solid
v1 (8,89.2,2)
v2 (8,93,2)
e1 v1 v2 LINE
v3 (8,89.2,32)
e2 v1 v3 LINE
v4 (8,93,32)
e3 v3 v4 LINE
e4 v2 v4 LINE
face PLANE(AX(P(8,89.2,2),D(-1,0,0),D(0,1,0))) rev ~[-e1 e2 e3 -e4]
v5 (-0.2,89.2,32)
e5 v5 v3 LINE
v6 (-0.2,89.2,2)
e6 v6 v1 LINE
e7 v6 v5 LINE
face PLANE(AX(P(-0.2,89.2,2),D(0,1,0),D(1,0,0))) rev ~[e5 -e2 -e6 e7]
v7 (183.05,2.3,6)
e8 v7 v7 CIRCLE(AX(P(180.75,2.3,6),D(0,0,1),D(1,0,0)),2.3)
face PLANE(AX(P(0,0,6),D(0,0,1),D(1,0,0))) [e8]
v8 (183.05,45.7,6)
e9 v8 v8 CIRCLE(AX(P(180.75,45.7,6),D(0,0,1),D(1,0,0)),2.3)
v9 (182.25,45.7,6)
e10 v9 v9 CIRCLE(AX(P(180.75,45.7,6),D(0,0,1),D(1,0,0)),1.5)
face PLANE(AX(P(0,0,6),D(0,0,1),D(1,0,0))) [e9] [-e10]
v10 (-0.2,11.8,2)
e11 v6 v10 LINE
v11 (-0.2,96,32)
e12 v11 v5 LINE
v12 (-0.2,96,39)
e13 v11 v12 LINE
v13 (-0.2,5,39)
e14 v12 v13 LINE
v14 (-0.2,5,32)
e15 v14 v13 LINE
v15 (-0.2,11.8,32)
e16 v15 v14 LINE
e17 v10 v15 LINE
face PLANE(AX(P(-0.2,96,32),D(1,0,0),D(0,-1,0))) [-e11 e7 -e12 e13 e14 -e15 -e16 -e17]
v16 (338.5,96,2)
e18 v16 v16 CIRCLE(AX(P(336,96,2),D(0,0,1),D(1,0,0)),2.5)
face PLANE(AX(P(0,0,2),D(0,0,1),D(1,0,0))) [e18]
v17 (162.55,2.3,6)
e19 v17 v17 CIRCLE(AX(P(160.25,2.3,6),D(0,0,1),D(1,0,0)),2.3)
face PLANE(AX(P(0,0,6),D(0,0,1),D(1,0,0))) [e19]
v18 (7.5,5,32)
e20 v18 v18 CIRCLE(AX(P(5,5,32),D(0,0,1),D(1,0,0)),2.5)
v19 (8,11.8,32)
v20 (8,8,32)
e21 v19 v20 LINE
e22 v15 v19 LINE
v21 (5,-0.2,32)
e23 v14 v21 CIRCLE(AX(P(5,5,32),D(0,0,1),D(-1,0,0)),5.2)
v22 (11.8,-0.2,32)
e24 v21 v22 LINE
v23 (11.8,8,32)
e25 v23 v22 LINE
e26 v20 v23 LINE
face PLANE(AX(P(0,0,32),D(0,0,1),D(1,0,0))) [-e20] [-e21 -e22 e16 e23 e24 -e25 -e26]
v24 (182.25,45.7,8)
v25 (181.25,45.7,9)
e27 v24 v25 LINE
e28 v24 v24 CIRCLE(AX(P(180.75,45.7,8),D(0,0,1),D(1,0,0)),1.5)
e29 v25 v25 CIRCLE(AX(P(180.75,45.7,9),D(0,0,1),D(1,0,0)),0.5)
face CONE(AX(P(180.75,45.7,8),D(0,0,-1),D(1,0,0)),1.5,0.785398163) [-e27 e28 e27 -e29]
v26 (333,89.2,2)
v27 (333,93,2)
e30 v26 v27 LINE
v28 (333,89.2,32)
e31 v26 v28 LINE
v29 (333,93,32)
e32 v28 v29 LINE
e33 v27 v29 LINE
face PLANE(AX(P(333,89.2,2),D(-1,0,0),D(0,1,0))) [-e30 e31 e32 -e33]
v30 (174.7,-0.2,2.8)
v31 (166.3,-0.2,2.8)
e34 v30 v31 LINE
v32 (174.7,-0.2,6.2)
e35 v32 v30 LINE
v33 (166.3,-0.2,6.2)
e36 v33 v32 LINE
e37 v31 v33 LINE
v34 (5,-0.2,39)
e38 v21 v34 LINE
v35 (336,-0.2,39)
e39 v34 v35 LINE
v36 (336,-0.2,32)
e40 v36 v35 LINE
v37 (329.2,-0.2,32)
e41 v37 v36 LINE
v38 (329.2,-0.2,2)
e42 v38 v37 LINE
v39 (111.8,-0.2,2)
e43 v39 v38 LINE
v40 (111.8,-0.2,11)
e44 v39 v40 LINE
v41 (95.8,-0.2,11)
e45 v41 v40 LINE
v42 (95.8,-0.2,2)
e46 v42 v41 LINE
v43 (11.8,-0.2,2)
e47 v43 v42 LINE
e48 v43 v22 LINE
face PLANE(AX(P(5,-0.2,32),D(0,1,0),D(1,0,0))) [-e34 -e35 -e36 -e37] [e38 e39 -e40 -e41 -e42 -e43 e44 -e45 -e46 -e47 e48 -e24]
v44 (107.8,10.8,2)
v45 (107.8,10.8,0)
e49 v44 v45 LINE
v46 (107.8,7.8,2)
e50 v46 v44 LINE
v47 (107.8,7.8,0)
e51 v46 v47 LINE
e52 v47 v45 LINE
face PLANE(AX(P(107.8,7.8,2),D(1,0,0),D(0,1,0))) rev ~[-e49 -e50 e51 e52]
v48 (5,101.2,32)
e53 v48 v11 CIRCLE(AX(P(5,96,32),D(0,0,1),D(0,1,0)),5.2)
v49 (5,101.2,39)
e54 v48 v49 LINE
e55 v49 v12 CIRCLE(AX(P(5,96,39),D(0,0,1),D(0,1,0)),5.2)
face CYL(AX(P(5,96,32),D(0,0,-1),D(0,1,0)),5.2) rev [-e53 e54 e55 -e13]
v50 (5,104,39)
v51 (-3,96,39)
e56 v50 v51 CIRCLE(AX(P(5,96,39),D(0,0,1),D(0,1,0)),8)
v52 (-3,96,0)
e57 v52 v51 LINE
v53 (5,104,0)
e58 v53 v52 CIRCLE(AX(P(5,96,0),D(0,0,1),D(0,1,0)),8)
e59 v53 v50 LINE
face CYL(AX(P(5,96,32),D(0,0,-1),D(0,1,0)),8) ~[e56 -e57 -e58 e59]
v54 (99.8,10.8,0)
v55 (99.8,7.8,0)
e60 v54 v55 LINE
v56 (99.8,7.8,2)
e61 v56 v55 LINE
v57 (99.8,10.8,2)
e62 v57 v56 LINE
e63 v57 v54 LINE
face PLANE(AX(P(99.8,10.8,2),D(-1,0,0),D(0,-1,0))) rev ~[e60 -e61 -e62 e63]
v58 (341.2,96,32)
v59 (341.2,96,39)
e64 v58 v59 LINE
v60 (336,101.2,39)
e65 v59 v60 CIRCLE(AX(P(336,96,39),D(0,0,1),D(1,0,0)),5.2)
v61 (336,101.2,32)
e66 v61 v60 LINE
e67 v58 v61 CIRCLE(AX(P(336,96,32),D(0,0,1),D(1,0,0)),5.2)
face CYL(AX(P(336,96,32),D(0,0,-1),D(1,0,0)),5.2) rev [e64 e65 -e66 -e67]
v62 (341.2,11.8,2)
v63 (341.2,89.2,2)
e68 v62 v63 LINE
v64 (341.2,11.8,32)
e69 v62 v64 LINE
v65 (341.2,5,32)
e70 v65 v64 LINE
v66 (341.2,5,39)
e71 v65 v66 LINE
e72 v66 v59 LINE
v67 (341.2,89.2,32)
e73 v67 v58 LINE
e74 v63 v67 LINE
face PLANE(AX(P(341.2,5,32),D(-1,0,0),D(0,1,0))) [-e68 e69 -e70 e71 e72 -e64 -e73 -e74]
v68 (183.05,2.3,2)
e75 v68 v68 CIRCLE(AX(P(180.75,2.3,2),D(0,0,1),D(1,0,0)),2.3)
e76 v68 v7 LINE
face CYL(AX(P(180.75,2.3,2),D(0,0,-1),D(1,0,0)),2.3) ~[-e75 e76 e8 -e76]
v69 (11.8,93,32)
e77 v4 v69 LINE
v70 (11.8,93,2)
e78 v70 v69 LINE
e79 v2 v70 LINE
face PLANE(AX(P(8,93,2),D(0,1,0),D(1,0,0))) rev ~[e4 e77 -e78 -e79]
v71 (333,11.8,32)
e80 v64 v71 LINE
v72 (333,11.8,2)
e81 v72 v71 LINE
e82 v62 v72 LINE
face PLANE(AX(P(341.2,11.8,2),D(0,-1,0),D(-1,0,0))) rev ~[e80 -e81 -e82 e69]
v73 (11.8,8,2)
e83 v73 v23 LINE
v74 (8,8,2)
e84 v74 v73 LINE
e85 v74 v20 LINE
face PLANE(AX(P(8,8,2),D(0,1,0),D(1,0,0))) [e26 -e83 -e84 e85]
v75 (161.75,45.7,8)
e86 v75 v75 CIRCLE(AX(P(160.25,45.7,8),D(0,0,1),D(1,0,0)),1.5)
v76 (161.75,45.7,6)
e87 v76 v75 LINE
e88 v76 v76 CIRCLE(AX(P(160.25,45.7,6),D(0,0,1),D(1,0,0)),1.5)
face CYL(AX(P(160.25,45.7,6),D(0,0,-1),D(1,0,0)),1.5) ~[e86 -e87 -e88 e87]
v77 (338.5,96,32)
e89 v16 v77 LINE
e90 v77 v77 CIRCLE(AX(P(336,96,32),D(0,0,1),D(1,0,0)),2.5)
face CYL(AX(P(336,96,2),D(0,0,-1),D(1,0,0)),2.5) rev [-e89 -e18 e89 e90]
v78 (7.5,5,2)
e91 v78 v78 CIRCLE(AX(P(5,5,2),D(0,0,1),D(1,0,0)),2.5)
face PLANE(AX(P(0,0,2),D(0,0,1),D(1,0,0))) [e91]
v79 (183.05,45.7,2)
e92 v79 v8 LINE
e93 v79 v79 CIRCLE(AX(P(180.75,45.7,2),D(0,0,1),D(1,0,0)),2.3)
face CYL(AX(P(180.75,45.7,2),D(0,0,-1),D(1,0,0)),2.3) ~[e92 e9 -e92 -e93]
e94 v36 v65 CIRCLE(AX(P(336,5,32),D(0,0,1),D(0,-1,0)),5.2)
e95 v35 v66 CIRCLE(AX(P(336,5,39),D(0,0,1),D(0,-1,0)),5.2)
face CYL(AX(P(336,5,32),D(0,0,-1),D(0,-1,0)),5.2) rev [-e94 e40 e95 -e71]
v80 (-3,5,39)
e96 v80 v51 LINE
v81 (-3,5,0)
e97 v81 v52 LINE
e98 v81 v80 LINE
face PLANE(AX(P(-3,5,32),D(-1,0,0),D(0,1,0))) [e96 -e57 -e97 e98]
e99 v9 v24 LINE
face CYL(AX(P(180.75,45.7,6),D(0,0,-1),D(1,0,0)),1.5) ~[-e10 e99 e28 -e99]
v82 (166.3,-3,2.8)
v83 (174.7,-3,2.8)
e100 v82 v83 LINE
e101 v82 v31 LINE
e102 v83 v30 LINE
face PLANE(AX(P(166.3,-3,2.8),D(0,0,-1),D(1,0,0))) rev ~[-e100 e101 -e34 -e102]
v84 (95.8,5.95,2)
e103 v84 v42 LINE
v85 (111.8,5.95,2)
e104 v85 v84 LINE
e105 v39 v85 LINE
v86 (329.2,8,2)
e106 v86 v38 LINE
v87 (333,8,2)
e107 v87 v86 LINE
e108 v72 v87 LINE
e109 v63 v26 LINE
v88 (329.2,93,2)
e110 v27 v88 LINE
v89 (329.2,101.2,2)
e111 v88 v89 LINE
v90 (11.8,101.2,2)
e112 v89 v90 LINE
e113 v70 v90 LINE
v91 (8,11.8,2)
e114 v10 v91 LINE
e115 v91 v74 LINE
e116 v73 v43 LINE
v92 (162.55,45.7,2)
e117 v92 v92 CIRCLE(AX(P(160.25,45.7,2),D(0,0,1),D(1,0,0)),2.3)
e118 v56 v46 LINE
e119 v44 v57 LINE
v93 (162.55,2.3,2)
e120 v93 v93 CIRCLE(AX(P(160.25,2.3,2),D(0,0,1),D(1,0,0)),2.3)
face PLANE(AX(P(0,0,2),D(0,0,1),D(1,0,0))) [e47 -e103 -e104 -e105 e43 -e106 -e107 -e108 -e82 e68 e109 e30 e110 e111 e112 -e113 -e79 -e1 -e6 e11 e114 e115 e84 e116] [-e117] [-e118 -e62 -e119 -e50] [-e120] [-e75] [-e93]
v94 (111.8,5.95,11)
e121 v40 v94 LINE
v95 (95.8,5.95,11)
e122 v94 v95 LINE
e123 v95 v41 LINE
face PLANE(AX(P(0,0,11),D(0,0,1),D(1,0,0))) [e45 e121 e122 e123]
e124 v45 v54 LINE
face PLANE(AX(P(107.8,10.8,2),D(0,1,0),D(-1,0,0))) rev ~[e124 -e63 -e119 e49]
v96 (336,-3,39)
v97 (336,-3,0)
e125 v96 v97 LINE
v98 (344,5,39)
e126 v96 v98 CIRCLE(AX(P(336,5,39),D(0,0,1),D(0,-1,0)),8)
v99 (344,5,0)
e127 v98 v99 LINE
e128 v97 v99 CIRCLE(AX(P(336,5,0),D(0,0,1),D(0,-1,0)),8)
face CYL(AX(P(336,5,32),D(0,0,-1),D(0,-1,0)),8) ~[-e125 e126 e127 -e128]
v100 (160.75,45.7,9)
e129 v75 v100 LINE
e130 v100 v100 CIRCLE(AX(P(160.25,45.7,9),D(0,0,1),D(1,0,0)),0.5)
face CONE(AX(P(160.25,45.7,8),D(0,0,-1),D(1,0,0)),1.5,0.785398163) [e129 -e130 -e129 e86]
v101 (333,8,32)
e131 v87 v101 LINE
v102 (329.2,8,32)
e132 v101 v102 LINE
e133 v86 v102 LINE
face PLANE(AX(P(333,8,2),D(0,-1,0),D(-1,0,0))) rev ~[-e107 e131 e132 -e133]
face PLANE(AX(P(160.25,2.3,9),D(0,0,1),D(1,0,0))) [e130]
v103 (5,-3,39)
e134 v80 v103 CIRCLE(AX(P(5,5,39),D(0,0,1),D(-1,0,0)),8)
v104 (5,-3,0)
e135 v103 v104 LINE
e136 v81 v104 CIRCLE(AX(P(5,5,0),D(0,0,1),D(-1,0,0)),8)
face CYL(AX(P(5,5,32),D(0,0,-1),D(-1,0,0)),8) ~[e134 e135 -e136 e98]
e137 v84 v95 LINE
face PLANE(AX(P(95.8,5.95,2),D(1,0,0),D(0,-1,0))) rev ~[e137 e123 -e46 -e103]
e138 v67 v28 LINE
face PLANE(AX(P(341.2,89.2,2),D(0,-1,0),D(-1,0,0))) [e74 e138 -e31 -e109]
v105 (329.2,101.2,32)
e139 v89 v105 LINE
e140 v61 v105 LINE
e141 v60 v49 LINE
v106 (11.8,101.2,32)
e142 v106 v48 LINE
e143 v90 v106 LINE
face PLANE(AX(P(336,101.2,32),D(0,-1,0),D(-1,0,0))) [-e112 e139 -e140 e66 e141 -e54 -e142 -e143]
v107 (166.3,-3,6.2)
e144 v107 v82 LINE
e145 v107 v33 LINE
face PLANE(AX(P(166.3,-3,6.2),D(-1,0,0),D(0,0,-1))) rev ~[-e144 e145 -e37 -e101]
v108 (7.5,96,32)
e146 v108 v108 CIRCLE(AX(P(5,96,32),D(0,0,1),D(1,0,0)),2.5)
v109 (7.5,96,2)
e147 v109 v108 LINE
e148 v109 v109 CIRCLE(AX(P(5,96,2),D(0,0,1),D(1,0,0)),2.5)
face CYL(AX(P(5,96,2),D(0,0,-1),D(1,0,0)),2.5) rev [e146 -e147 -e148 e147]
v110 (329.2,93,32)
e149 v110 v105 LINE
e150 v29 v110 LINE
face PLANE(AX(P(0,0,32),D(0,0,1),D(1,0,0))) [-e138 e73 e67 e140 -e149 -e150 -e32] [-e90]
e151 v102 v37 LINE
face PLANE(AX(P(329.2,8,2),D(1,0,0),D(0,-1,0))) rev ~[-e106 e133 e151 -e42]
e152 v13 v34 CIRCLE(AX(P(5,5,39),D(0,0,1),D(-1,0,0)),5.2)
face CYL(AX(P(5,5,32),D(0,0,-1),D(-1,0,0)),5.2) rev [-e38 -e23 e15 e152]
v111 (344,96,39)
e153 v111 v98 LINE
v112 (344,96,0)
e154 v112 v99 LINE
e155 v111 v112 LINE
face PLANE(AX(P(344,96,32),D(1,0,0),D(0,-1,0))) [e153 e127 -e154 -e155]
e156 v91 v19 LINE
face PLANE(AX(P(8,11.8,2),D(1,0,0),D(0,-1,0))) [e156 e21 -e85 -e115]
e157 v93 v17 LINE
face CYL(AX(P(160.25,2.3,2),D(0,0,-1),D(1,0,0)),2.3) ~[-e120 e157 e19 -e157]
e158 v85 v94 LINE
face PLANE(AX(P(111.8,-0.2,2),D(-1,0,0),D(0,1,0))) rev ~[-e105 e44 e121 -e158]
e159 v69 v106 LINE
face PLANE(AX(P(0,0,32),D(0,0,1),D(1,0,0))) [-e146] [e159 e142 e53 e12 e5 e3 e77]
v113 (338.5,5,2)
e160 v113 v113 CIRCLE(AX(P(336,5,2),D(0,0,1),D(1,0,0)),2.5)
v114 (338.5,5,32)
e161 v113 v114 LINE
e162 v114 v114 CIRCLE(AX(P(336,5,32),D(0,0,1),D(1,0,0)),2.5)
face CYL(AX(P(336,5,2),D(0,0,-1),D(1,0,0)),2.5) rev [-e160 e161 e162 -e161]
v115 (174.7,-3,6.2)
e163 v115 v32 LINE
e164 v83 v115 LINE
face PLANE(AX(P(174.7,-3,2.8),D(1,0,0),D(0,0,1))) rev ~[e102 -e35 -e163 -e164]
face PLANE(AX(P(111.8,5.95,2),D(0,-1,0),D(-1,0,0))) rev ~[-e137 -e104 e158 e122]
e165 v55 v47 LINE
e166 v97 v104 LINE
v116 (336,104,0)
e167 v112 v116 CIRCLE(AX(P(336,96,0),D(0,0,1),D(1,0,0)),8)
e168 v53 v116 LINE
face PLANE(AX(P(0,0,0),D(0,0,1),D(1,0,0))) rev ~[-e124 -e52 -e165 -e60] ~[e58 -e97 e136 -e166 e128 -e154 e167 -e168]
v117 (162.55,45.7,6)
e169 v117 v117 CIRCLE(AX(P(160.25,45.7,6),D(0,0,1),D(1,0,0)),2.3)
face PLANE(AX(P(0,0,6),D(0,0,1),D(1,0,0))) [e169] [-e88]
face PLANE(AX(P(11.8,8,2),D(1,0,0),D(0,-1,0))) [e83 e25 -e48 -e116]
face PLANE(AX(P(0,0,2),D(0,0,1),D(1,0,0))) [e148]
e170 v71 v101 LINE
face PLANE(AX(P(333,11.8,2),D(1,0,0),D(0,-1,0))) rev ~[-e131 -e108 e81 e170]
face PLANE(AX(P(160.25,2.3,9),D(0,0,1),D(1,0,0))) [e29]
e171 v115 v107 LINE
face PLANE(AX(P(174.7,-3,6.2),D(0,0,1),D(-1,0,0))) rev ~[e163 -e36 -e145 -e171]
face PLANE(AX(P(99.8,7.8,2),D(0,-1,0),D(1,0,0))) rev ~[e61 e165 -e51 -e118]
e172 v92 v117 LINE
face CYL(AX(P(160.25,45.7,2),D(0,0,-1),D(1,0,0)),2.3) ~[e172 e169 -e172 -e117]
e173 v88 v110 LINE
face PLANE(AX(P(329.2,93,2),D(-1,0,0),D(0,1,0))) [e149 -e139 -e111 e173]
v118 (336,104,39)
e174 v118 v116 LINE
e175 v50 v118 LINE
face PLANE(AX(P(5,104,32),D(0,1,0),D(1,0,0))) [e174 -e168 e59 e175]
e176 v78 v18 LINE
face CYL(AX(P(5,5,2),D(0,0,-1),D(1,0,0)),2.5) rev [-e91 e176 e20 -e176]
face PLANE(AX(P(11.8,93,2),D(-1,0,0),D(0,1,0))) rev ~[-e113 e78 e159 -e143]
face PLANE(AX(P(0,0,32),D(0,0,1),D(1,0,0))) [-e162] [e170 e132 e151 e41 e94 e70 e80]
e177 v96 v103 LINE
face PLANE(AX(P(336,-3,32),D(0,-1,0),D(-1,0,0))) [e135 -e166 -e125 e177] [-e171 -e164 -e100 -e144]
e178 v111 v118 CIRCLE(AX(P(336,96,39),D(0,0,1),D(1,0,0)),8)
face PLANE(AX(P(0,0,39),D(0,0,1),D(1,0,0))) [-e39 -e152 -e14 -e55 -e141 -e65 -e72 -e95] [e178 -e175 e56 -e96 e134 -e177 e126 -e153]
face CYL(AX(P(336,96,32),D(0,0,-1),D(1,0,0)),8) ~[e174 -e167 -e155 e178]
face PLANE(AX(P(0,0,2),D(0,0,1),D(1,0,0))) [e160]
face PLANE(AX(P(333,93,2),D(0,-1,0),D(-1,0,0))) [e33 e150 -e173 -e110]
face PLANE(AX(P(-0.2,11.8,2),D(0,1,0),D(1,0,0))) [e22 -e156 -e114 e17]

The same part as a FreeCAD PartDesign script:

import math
import FreeCAD as App
import Part
import Sketcher

V = App.Vector


def edges_at(feature, points):
    """Names of the edges that pass closest to the given points."""
    edges = feature.Shape.Edges
    near = lambda p: min(range(len(edges)), key=lambda i: edges[i].distToShape(Part.Vertex(*p))[0])
    return sorted({f"Edge{near(p) + 1}" for p in points})

doc = App.newDocument("Part")
body = doc.addObject("PartDesign::Body", "Body")

sketch1 = body.newObject("Sketcher::SketchObject", "Sketch")
sketch1.AttachmentSupport = (doc.getObject("XY_Plane"), [""])
sketch1.MapMode = "FlatFace"
sketch1.addGeometry(Part.LineSegment(V(336, 104, 0), V(5, 104, 0)), False)
sketch1.addGeometry(Part.ArcOfCircle(Part.Circle(V(5, 96, 0), V(0, 0, 1), 8), math.radians(90), math.radians(180)), False)
sketch1.addGeometry(Part.LineSegment(V(-3, 96, 0), V(-3, 5, 0)), False)
sketch1.addGeometry(Part.ArcOfCircle(Part.Circle(V(5, 5, 0), V(0, 0, 1), 8), math.radians(180), math.radians(270)), False)
sketch1.addGeometry(Part.LineSegment(V(5, -3, 0), V(336, -3, 0)), False)
sketch1.addGeometry(Part.ArcOfCircle(Part.Circle(V(336, 5, 0), V(0, 0, 1), 8), math.radians(-90), math.radians(0)), False)
sketch1.addGeometry(Part.LineSegment(V(344, 5, 0), V(344, 96, 0)), False)
sketch1.addGeometry(Part.ArcOfCircle(Part.Circle(V(336, 96, 0), V(0, 0, 1), 8), math.radians(0), math.radians(90)), False)
sketch1.addConstraint(Sketcher.Constraint("Tangent", 0, 2, 1, 1))
sketch1.addConstraint(Sketcher.Constraint("Tangent", 1, 2, 2, 1))
sketch1.addConstraint(Sketcher.Constraint("Tangent", 2, 2, 3, 1))
sketch1.addConstraint(Sketcher.Constraint("Tangent", 3, 2, 4, 1))
sketch1.addConstraint(Sketcher.Constraint("Tangent", 4, 2, 5, 1))
sketch1.addConstraint(Sketcher.Constraint("Tangent", 5, 2, 6, 1))
sketch1.addConstraint(Sketcher.Constraint("Tangent", 6, 2, 7, 1))
sketch1.addConstraint(Sketcher.Constraint("Tangent", 7, 2, 0, 1))
sketch1.addConstraint(Sketcher.Constraint("Horizontal", 0))
sketch1.addConstraint(Sketcher.Constraint("Vertical", 2))
sketch1.addConstraint(Sketcher.Constraint("Horizontal", 4))
sketch1.addConstraint(Sketcher.Constraint("Vertical", 6))
sketch1.addConstraint(Sketcher.Constraint("Equal", 1, 3))
sketch1.addConstraint(Sketcher.Constraint("Equal", 3, 5))
sketch1.addConstraint(Sketcher.Constraint("Equal", 5, 7))
sketch1.addConstraint(Sketcher.Constraint("DistanceX", -1, 1, 1, 3, 5.0))
sketch1.addConstraint(Sketcher.Constraint("DistanceY", -1, 1, 3, 3, 5.0))
sketch1.addConstraint(Sketcher.Constraint("DistanceX", 1, 2, -1, 1, 3.0))
sketch1.addConstraint(Sketcher.Constraint("DistanceX", 0, 2, 0, 1, 331.0))
sketch1.addConstraint(Sketcher.Constraint("DistanceY", 2, 2, 2, 1, 91.0))
pad1 = body.newObject("PartDesign::Pad", "Pad")
pad1.Profile = sketch1
pad1.Length = 2

sketch2 = body.newObject("Sketcher::SketchObject", "Sketch001")
sketch2.AttachmentSupport = (doc.getObject("XY_Plane"), [""])
sketch2.MapMode = "FlatFace"
sketch2.AttachmentOffset = App.Placement(V(0, 0, 2), App.Rotation())
sketch2.addGeometry(Part.LineSegment(V(336, 104, 0), V(5, 104, 0)), False)
sketch2.addGeometry(Part.ArcOfCircle(Part.Circle(V(5, 96, 0), V(0, 0, 1), 8), math.radians(90), math.radians(180)), False)
sketch2.addGeometry(Part.LineSegment(V(-3, 96, 0), V(-3, 5, 0)), False)
sketch2.addGeometry(Part.ArcOfCircle(Part.Circle(V(5, 5, 0), V(0, 0, 1), 8), math.radians(180), math.radians(270)), False)
sketch2.addGeometry(Part.LineSegment(V(5, -3, 0), V(336, -3, 0)), False)
sketch2.addGeometry(Part.ArcOfCircle(Part.Circle(V(336, 5, 0), V(0, 0, 1), 8), math.radians(-90), math.radians(0)), False)
sketch2.addGeometry(Part.LineSegment(V(344, 5, 0), V(344, 96, 0)), False)
sketch2.addGeometry(Part.ArcOfCircle(Part.Circle(V(336, 96, 0), V(0, 0, 1), 8), math.radians(0), math.radians(90)), False)
sketch2.addGeometry(Part.LineSegment(V(11.8, 101.2, 0), V(329.2, 101.2, 0)), False)
sketch2.addGeometry(Part.LineSegment(V(329.2, 101.2, 0), V(329.2, 93, 0)), False)
sketch2.addGeometry(Part.LineSegment(V(329.2, 93, 0), V(333, 93, 0)), False)
sketch2.addGeometry(Part.LineSegment(V(333, 93, 0), V(333, 89.2, 0)), False)
sketch2.addGeometry(Part.LineSegment(V(333, 89.2, 0), V(341.2, 89.2, 0)), False)
sketch2.addGeometry(Part.LineSegment(V(341.2, 89.2, 0), V(341.2, 11.8, 0)), False)
sketch2.addGeometry(Part.LineSegment(V(341.2, 11.8, 0), V(333, 11.8, 0)), False)
sketch2.addGeometry(Part.LineSegment(V(333, 11.8, 0), V(333, 8, 0)), False)
sketch2.addGeometry(Part.LineSegment(V(333, 8, 0), V(329.2, 8, 0)), False)
sketch2.addGeometry(Part.LineSegment(V(329.2, 8, 0), V(329.2, -0.2, 0)), False)
sketch2.addGeometry(Part.LineSegment(V(329.2, -0.2, 0), V(11.8, -0.2, 0)), False)
sketch2.addGeometry(Part.LineSegment(V(11.8, -0.2, 0), V(11.8, 8, 0)), False)
sketch2.addGeometry(Part.LineSegment(V(11.8, 8, 0), V(8, 8, 0)), False)
sketch2.addGeometry(Part.LineSegment(V(8, 8, 0), V(8, 11.8, 0)), False)
sketch2.addGeometry(Part.LineSegment(V(8, 11.8, 0), V(-0.2, 11.8, 0)), False)
sketch2.addGeometry(Part.LineSegment(V(-0.2, 11.8, 0), V(-0.2, 89.2, 0)), False)
sketch2.addGeometry(Part.LineSegment(V(-0.2, 89.2, 0), V(8, 89.2, 0)), False)
sketch2.addGeometry(Part.LineSegment(V(8, 89.2, 0), V(8, 93, 0)), False)
sketch2.addGeometry(Part.LineSegment(V(8, 93, 0), V(11.8, 93, 0)), False)
sketch2.addGeometry(Part.LineSegment(V(11.8, 93, 0), V(11.8, 101.2, 0)), False)
sketch2.addGeometry(Part.Circle(V(336, 96, 0), V(0, 0, 1), 2.5), False)
sketch2.addGeometry(Part.Circle(V(5, 96, 0), V(0, 0, 1), 2.5), False)
sketch2.addGeometry(Part.Circle(V(5, 5, 0), V(0, 0, 1), 2.5), False)
sketch2.addGeometry(Part.Circle(V(336, 5, 0), V(0, 0, 1), 2.5), False)
sketch2.addConstraint(Sketcher.Constraint("Tangent", 0, 2, 1, 1))
sketch2.addConstraint(Sketcher.Constraint("Tangent", 1, 2, 2, 1))
sketch2.addConstraint(Sketcher.Constraint("Tangent", 2, 2, 3, 1))
sketch2.addConstraint(Sketcher.Constraint("Tangent", 3, 2, 4, 1))
sketch2.addConstraint(Sketcher.Constraint("Tangent", 4, 2, 5, 1))
sketch2.addConstraint(Sketcher.Constraint("Tangent", 5, 2, 6, 1))
sketch2.addConstraint(Sketcher.Constraint("Tangent", 6, 2, 7, 1))
sketch2.addConstraint(Sketcher.Constraint("Tangent", 7, 2, 0, 1))
sketch2.addConstraint(Sketcher.Constraint("Coincident", 8, 2, 9, 1))
sketch2.addConstraint(Sketcher.Constraint("Coincident", 9, 2, 10, 1))
sketch2.addConstraint(Sketcher.Constraint("Coincident", 10, 2, 11, 1))
sketch2.addConstraint(Sketcher.Constraint("Coincident", 11, 2, 12, 1))
sketch2.addConstraint(Sketcher.Constraint("Coincident", 12, 2, 13, 1))
sketch2.addConstraint(Sketcher.Constraint("Coincident", 13, 2, 14, 1))
sketch2.addConstraint(Sketcher.Constraint("Coincident", 14, 2, 15, 1))
sketch2.addConstraint(Sketcher.Constraint("Coincident", 15, 2, 16, 1))
sketch2.addConstraint(Sketcher.Constraint("Coincident", 16, 2, 17, 1))
sketch2.addConstraint(Sketcher.Constraint("Coincident", 17, 2, 18, 1))
sketch2.addConstraint(Sketcher.Constraint("Coincident", 18, 2, 19, 1))
sketch2.addConstraint(Sketcher.Constraint("Coincident", 19, 2, 20, 1))
sketch2.addConstraint(Sketcher.Constraint("Coincident", 20, 2, 21, 1))
sketch2.addConstraint(Sketcher.Constraint("Coincident", 21, 2, 22, 1))
sketch2.addConstraint(Sketcher.Constraint("Coincident", 22, 2, 23, 1))
sketch2.addConstraint(Sketcher.Constraint("Coincident", 23, 2, 24, 1))
sketch2.addConstraint(Sketcher.Constraint("Coincident", 24, 2, 25, 1))
sketch2.addConstraint(Sketcher.Constraint("Coincident", 25, 2, 26, 1))
sketch2.addConstraint(Sketcher.Constraint("Coincident", 26, 2, 27, 1))
sketch2.addConstraint(Sketcher.Constraint("Coincident", 27, 2, 8, 1))
sketch2.addConstraint(Sketcher.Constraint("Horizontal", 0))
sketch2.addConstraint(Sketcher.Constraint("Vertical", 2))
sketch2.addConstraint(Sketcher.Constraint("Horizontal", 4))
sketch2.addConstraint(Sketcher.Constraint("Vertical", 6))
sketch2.addConstraint(Sketcher.Constraint("Horizontal", 8))
sketch2.addConstraint(Sketcher.Constraint("Vertical", 9))
sketch2.addConstraint(Sketcher.Constraint("Horizontal", 10))
sketch2.addConstraint(Sketcher.Constraint("Vertical", 11))
sketch2.addConstraint(Sketcher.Constraint("Horizontal", 12))
sketch2.addConstraint(Sketcher.Constraint("Vertical", 13))
sketch2.addConstraint(Sketcher.Constraint("Horizontal", 14))
sketch2.addConstraint(Sketcher.Constraint("Vertical", 15))
sketch2.addConstraint(Sketcher.Constraint("Horizontal", 16))
sketch2.addConstraint(Sketcher.Constraint("Vertical", 17))
sketch2.addConstraint(Sketcher.Constraint("Horizontal", 18))
sketch2.addConstraint(Sketcher.Constraint("Vertical", 19))
sketch2.addConstraint(Sketcher.Constraint("Horizontal", 20))
sketch2.addConstraint(Sketcher.Constraint("Vertical", 21))
sketch2.addConstraint(Sketcher.Constraint("Horizontal", 22))
sketch2.addConstraint(Sketcher.Constraint("Vertical", 23))
sketch2.addConstraint(Sketcher.Constraint("Horizontal", 24))
sketch2.addConstraint(Sketcher.Constraint("Vertical", 25))
sketch2.addConstraint(Sketcher.Constraint("Horizontal", 26))
sketch2.addConstraint(Sketcher.Constraint("Vertical", 27))
sketch2.addConstraint(Sketcher.Constraint("Coincident", 28, 3, 7, 3))
sketch2.addConstraint(Sketcher.Constraint("Coincident", 29, 3, 1, 3))
sketch2.addConstraint(Sketcher.Constraint("Coincident", 30, 3, 3, 3))
sketch2.addConstraint(Sketcher.Constraint("Coincident", 31, 3, 5, 3))
sketch2.addConstraint(Sketcher.Constraint("Equal", 1, 3))
sketch2.addConstraint(Sketcher.Constraint("Equal", 3, 5))
sketch2.addConstraint(Sketcher.Constraint("Equal", 5, 7))
sketch2.addConstraint(Sketcher.Constraint("Equal", 28, 29))
sketch2.addConstraint(Sketcher.Constraint("Equal", 29, 30))
sketch2.addConstraint(Sketcher.Constraint("Equal", 30, 31))
sketch2.addConstraint(Sketcher.Constraint("Horizontal", 16, 2, 19, 2))
sketch2.addConstraint(Sketcher.Constraint("Horizontal", 14, 2, 21, 2))
sketch2.addConstraint(Sketcher.Constraint("Horizontal", 12, 2, 23, 2))
sketch2.addConstraint(Sketcher.Constraint("Horizontal", 10, 2, 25, 2))
sketch2.addConstraint(Sketcher.Constraint("Vertical", 11, 2, 14, 2))
sketch2.addConstraint(Sketcher.Constraint("Vertical", 9, 2, 16, 2))
sketch2.addConstraint(Sketcher.Constraint("Vertical", 21, 2, 24, 2))
sketch2.addConstraint(Sketcher.Constraint("Vertical", 19, 2, 26, 2))
sketch2.addConstraint(Sketcher.Constraint("Equal", 16, 20))
sketch2.addConstraint(Sketcher.Constraint("Equal", 14, 22))
sketch2.addConstraint(Sketcher.Constraint("Equal", 24, 9))
sketch2.addConstraint(Sketcher.Constraint("Equal", 26, 11))
sketch2.addConstraint(Sketcher.Constraint("Equal", 11, 15))
sketch2.addConstraint(Sketcher.Constraint("Equal", 9, 17))
sketch2.addConstraint(Sketcher.Constraint("Diameter", 28, 5.0))
sketch2.addConstraint(Sketcher.Constraint("Radius", 1, 8.0))
sketch2.addConstraint(Sketcher.Constraint("DistanceX", -1, 1, 1, 3, 5.0))
sketch2.addConstraint(Sketcher.Constraint("DistanceY", -1, 1, 3, 3, 5.0))
sketch2.addConstraint(Sketcher.Constraint("DistanceY", -1, 1, 15, 2, 8.0))
sketch2.addConstraint(Sketcher.Constraint("DistanceX", -1, 1, 20, 2, 8.0))
sketch2.addConstraint(Sketcher.Constraint("DistanceY", 11, 2, 8, 2, 12.0))
sketch2.addConstraint(Sketcher.Constraint("DistanceY", 8, 2, 7, 2, 2.8))
sketch2.addConstraint(Sketcher.Constraint("DistanceX", 12, 2, 6, 2, 2.8))
sketch2.addConstraint(Sketcher.Constraint("DistanceY", 4, 2, 17, 2, 2.8))
sketch2.addConstraint(Sketcher.Constraint("DistanceX", 0, 2, 0, 1, 331.0))
sketch2.addConstraint(Sketcher.Constraint("DistanceY", 2, 2, 2, 1, 91.0))
pad2 = body.newObject("PartDesign::Pad", "Pad001")
pad2.Profile = sketch2
pad2.Length = 30

sketch3 = body.newObject("Sketcher::SketchObject", "Sketch002")
sketch3.AttachmentSupport = (doc.getObject("XY_Plane"), [""])
sketch3.MapMode = "FlatFace"
sketch3.AttachmentOffset = App.Placement(V(0, 0, 32), App.Rotation())
sketch3.addGeometry(Part.LineSegment(V(336, 104, 0), V(5, 104, 0)), False)
sketch3.addGeometry(Part.ArcOfCircle(Part.Circle(V(5, 96, 0), V(0, 0, 1), 8), math.radians(90), math.radians(180)), False)
sketch3.addGeometry(Part.LineSegment(V(-3, 96, 0), V(-3, 5, 0)), False)
sketch3.addGeometry(Part.ArcOfCircle(Part.Circle(V(5, 5, 0), V(0, 0, 1), 8), math.radians(180), math.radians(270)), False)
sketch3.addGeometry(Part.LineSegment(V(5, -3, 0), V(336, -3, 0)), False)
sketch3.addGeometry(Part.ArcOfCircle(Part.Circle(V(336, 5, 0), V(0, 0, 1), 8), math.radians(-90), math.radians(0)), False)
sketch3.addGeometry(Part.LineSegment(V(344, 5, 0), V(344, 96, 0)), False)
sketch3.addGeometry(Part.ArcOfCircle(Part.Circle(V(336, 96, 0), V(0, 0, 1), 8), math.radians(0), math.radians(90)), False)
sketch3.addGeometry(Part.LineSegment(V(5, 101, 0), V(336, 101, 0)), False)
sketch3.addGeometry(Part.ArcOfCircle(Part.Circle(V(336, 96, 0), V(0, 0, 1), 5), math.radians(0), math.radians(90)), False)
sketch3.addGeometry(Part.LineSegment(V(341, 96, 0), V(341, 5, 0)), False)
sketch3.addGeometry(Part.ArcOfCircle(Part.Circle(V(336, 5, 0), V(0, 0, 1), 5), math.radians(-90), math.radians(0)), False)
sketch3.addGeometry(Part.LineSegment(V(336, 0, 0), V(5, 0, 0)), False)
sketch3.addGeometry(Part.ArcOfCircle(Part.Circle(V(5, 5, 0), V(0, 0, 1), 5), math.radians(180), math.radians(270)), False)
sketch3.addGeometry(Part.LineSegment(V(0, 5, 0), V(0, 96, 0)), False)
sketch3.addGeometry(Part.ArcOfCircle(Part.Circle(V(5, 96, 0), V(0, 0, 1), 5), math.radians(90), math.radians(180)), False)
sketch3.addConstraint(Sketcher.Constraint("Tangent", 0, 2, 1, 1))
sketch3.addConstraint(Sketcher.Constraint("Tangent", 1, 2, 2, 1))
sketch3.addConstraint(Sketcher.Constraint("Tangent", 2, 2, 3, 1))
sketch3.addConstraint(Sketcher.Constraint("Tangent", 3, 2, 4, 1))
sketch3.addConstraint(Sketcher.Constraint("Tangent", 4, 2, 5, 1))
sketch3.addConstraint(Sketcher.Constraint("Tangent", 5, 2, 6, 1))
sketch3.addConstraint(Sketcher.Constraint("Tangent", 6, 2, 7, 1))
sketch3.addConstraint(Sketcher.Constraint("Tangent", 7, 2, 0, 1))
sketch3.addConstraint(Sketcher.Constraint("Tangent", 8, 2, 9, 2))
sketch3.addConstraint(Sketcher.Constraint("Tangent", 9, 1, 10, 1))
sketch3.addConstraint(Sketcher.Constraint("Tangent", 10, 2, 11, 2))
sketch3.addConstraint(Sketcher.Constraint("Tangent", 11, 1, 12, 1))
sketch3.addConstraint(Sketcher.Constraint("Tangent", 12, 2, 13, 2))
sketch3.addConstraint(Sketcher.Constraint("Tangent", 13, 1, 14, 1))
sketch3.addConstraint(Sketcher.Constraint("Tangent", 14, 2, 15, 2))
sketch3.addConstraint(Sketcher.Constraint("Tangent", 15, 1, 8, 1))
sketch3.addConstraint(Sketcher.Constraint("Horizontal", 0))
sketch3.addConstraint(Sketcher.Constraint("Vertical", 2))
sketch3.addConstraint(Sketcher.Constraint("Horizontal", 4))
sketch3.addConstraint(Sketcher.Constraint("Vertical", 6))
sketch3.addConstraint(Sketcher.Constraint("Horizontal", 8))
sketch3.addConstraint(Sketcher.Constraint("Vertical", 10))
sketch3.addConstraint(Sketcher.Constraint("Horizontal", 12))
sketch3.addConstraint(Sketcher.Constraint("Vertical", 14))
sketch3.addConstraint(Sketcher.Constraint("Coincident", 9, 3, 7, 3))
sketch3.addConstraint(Sketcher.Constraint("Coincident", 11, 3, 5, 3))
sketch3.addConstraint(Sketcher.Constraint("Coincident", 13, 3, 3, 3))
sketch3.addConstraint(Sketcher.Constraint("Equal", 1, 3))
sketch3.addConstraint(Sketcher.Constraint("Equal", 3, 5))
sketch3.addConstraint(Sketcher.Constraint("Equal", 5, 7))
sketch3.addConstraint(Sketcher.Constraint("Equal", 13, 15))
sketch3.addConstraint(Sketcher.Constraint("Radius", 1, 8.0))
sketch3.addConstraint(Sketcher.Constraint("Radius", 9, 5.2))
sketch3.addConstraint(Sketcher.Constraint("DistanceX", 0, 2, 0, 1, 331.0))
sketch3.addConstraint(Sketcher.Constraint("DistanceY", 2, 2, 2, 1, 91.0))
sketch3.addConstraint(Sketcher.Constraint("DistanceX", -1, 1, 1, 3, 5.0))
sketch3.addConstraint(Sketcher.Constraint("DistanceY", -1, 1, 1, 3, 96.0))
pad3 = body.newObject("PartDesign::Pad", "Pad002")
pad3.Profile = sketch3
pad3.Length = 7

sketch4 = body.newObject("Sketcher::SketchObject", "Sketch003")
sketch4.AttachmentSupport = (doc.getObject("XY_Plane"), [""])
sketch4.MapMode = "FlatFace"
sketch4.AttachmentOffset = App.Placement(V(0, 0, 2), App.Rotation())
sketch4.addGeometry(Part.Circle(V(160.2, 45.7, 0), V(0, 0, 1), 2.3), False)
sketch4.addGeometry(Part.Circle(V(180.8, 45.7, 0), V(0, 0, 1), 2.3), False)
sketch4.addGeometry(Part.Circle(V(160.2, 2.3, 0), V(0, 0, 1), 2.3), False)
sketch4.addGeometry(Part.Circle(V(180.8, 2.3, 0), V(0, 0, 1), 2.3), False)
sketch4.addConstraint(Sketcher.Constraint("Equal", 0, 1))
sketch4.addConstraint(Sketcher.Constraint("Equal", 1, 2))
sketch4.addConstraint(Sketcher.Constraint("Equal", 2, 3))
sketch4.addConstraint(Sketcher.Constraint("Horizontal", 0, 3, 1, 3))
sketch4.addConstraint(Sketcher.Constraint("Horizontal", 2, 3, 3, 3))
sketch4.addConstraint(Sketcher.Constraint("Vertical", 0, 3, 2, 3))
sketch4.addConstraint(Sketcher.Constraint("Vertical", 1, 3, 3, 3))
sketch4.addConstraint(Sketcher.Constraint("Diameter", 0, 4.6))
sketch4.addConstraint(Sketcher.Constraint("DistanceY", -1, 1, 0, 3, 45.7))
sketch4.addConstraint(Sketcher.Constraint("DistanceY", -1, 1, 2, 3, 2.3))
sketch4.addConstraint(Sketcher.Constraint("DistanceX", 0, 3, 1, 3, 20.5))
sketch4.addConstraint(Sketcher.Constraint("DistanceX", -1, 1, 0, 3, 160.25))
pad4 = body.newObject("PartDesign::Pad", "Pad003")
pad4.Profile = sketch4
pad4.Length = 4

sketch5 = body.newObject("Sketcher::SketchObject", "Sketch004")
sketch5.AttachmentSupport = (doc.getObject("XY_Plane"), [""])
sketch5.MapMode = "FlatFace"
sketch5.AttachmentOffset = App.Placement(V(0, 0, 6), App.Rotation())
sketch5.addGeometry(Part.Circle(V(160.2, 45.7, 0), V(0, 0, 1), 1.5), False)
sketch5.addGeometry(Part.Circle(V(180.8, 45.7, 0), V(0, 0, 1), 1.5), False)
sketch5.addConstraint(Sketcher.Constraint("Equal", 0, 1))
sketch5.addConstraint(Sketcher.Constraint("Horizontal", 0, 3, 1, 3))
sketch5.addConstraint(Sketcher.Constraint("Diameter", 0, 3.0))
sketch5.addConstraint(Sketcher.Constraint("DistanceY", -1, 1, 0, 3, 45.7))
sketch5.addConstraint(Sketcher.Constraint("DistanceX", 0, 3, 1, 3, 20.5))
sketch5.addConstraint(Sketcher.Constraint("DistanceX", -1, 1, 0, 3, 160.25))
pad5 = body.newObject("PartDesign::Pad", "Pad004")
pad5.Profile = sketch5
pad5.Length = 3
doc.recompute()

chamfer = body.newObject("PartDesign::Chamfer", "Chamfer")
chamfer.Base = (pad5, edges_at(pad5, [(158.75, 45.7, 9), (179.25, 45.7, 9)]))
chamfer.Size = 1

sketch6 = body.newObject("Sketcher::SketchObject", "Sketch005")
sketch6.AttachmentSupport = (doc.getObject("XZ_Plane"), [""])
sketch6.MapMode = "FlatFace"
sketch6.AttachmentOffset = App.Placement(V(0, 0, 3), App.Rotation())
sketch6.addGeometry(Part.LineSegment(V(166.3, 6.2, 0), V(166.3, 2.8, 0)), False)
sketch6.addGeometry(Part.LineSegment(V(166.3, 2.8, 0), V(174.7, 2.8, 0)), False)
sketch6.addGeometry(Part.LineSegment(V(174.7, 2.8, 0), V(174.7, 6.2, 0)), False)
sketch6.addGeometry(Part.LineSegment(V(174.7, 6.2, 0), V(166.3, 6.2, 0)), False)
sketch6.addConstraint(Sketcher.Constraint("Coincident", 0, 2, 1, 1))
sketch6.addConstraint(Sketcher.Constraint("Coincident", 1, 2, 2, 1))
sketch6.addConstraint(Sketcher.Constraint("Coincident", 2, 2, 3, 1))
sketch6.addConstraint(Sketcher.Constraint("Coincident", 3, 2, 0, 1))
sketch6.addConstraint(Sketcher.Constraint("Vertical", 0))
sketch6.addConstraint(Sketcher.Constraint("Horizontal", 1))
sketch6.addConstraint(Sketcher.Constraint("Vertical", 2))
sketch6.addConstraint(Sketcher.Constraint("Horizontal", 3))
sketch6.addConstraint(Sketcher.Constraint("DistanceX", 1, 1, 1, 2, 8.4))
sketch6.addConstraint(Sketcher.Constraint("DistanceY", 0, 2, 0, 1, 3.4))
sketch6.addConstraint(Sketcher.Constraint("DistanceX", -1, 1, 0, 2, 166.3))
sketch6.addConstraint(Sketcher.Constraint("DistanceY", -1, 1, 0, 2, 2.8))
pocket1 = body.newObject("PartDesign::Pocket", "Pocket")
pocket1.Profile = sketch6
pocket1.Length = 3

sketch7 = body.newObject("Sketcher::SketchObject", "Sketch006")
sketch7.AttachmentSupport = (doc.getObject("XY_Plane"), [""])
sketch7.MapMode = "FlatFace"
sketch7.AttachmentOffset = App.Placement(V(0, 0, 2), App.Rotation())
sketch7.addGeometry(Part.LineSegment(V(99.8, 10.8, 0), V(99.8, 7.8, 0)), False)
sketch7.addGeometry(Part.LineSegment(V(99.8, 7.8, 0), V(107.8, 7.8, 0)), False)
sketch7.addGeometry(Part.LineSegment(V(107.8, 7.8, 0), V(107.8, 10.8, 0)), False)
sketch7.addGeometry(Part.LineSegment(V(107.8, 10.8, 0), V(99.8, 10.8, 0)), False)
sketch7.addConstraint(Sketcher.Constraint("Coincident", 0, 2, 1, 1))
sketch7.addConstraint(Sketcher.Constraint("Coincident", 1, 2, 2, 1))
sketch7.addConstraint(Sketcher.Constraint("Coincident", 2, 2, 3, 1))
sketch7.addConstraint(Sketcher.Constraint("Coincident", 3, 2, 0, 1))
sketch7.addConstraint(Sketcher.Constraint("Vertical", 0))
sketch7.addConstraint(Sketcher.Constraint("Horizontal", 1))
sketch7.addConstraint(Sketcher.Constraint("Vertical", 2))
sketch7.addConstraint(Sketcher.Constraint("Horizontal", 3))
sketch7.addConstraint(Sketcher.Constraint("DistanceX", 1, 1, 1, 2, 8.0))
sketch7.addConstraint(Sketcher.Constraint("DistanceY", 0, 2, 0, 1, 3.0))
sketch7.addConstraint(Sketcher.Constraint("DistanceX", -1, 1, 0, 2, 99.8))
sketch7.addConstraint(Sketcher.Constraint("DistanceY", -1, 1, 0, 2, 7.8))
pocket2 = body.newObject("PartDesign::Pocket", "Pocket001")
pocket2.Profile = sketch7
pocket2.Length = 3

sketch8 = body.newObject("Sketcher::SketchObject", "Sketch007")
sketch8.AttachmentSupport = (doc.getObject("XY_Plane"), [""])
sketch8.MapMode = "FlatFace"
sketch8.AttachmentOffset = App.Placement(V(0, 0, 2), App.Rotation())
sketch8.addGeometry(Part.LineSegment(V(96, 6, 0), V(96, 0, 0)), False)
sketch8.addGeometry(Part.LineSegment(V(96, 0, 0), V(112, 0, 0)), False)
sketch8.addGeometry(Part.LineSegment(V(112, 0, 0), V(112, 6, 0)), False)
sketch8.addGeometry(Part.LineSegment(V(112, 6, 0), V(96, 6, 0)), False)
sketch8.addConstraint(Sketcher.Constraint("Coincident", 0, 2, 1, 1))
sketch8.addConstraint(Sketcher.Constraint("Coincident", 1, 2, 2, 1))
sketch8.addConstraint(Sketcher.Constraint("Coincident", 2, 2, 3, 1))
sketch8.addConstraint(Sketcher.Constraint("Coincident", 3, 2, 0, 1))
sketch8.addConstraint(Sketcher.Constraint("Vertical", 0))
sketch8.addConstraint(Sketcher.Constraint("Horizontal", 1))
sketch8.addConstraint(Sketcher.Constraint("Vertical", 2))
sketch8.addConstraint(Sketcher.Constraint("Horizontal", 3))
sketch8.addConstraint(Sketcher.Constraint("DistanceX", 1, 1, 1, 2, 16.0))
sketch8.addConstraint(Sketcher.Constraint("DistanceY", 0, 2, 0, 1, 6.15))
sketch8.addConstraint(Sketcher.Constraint("DistanceX", -1, 1, 0, 2, 95.8))
sketch8.addConstraint(Sketcher.Constraint("DistanceY", 0, 2, -1, 1, 0.2))
pad6 = body.newObject("PartDesign::Pad", "Pad005")
pad6.Profile = sketch8
pad6.Length = 9

doc.recompute()
